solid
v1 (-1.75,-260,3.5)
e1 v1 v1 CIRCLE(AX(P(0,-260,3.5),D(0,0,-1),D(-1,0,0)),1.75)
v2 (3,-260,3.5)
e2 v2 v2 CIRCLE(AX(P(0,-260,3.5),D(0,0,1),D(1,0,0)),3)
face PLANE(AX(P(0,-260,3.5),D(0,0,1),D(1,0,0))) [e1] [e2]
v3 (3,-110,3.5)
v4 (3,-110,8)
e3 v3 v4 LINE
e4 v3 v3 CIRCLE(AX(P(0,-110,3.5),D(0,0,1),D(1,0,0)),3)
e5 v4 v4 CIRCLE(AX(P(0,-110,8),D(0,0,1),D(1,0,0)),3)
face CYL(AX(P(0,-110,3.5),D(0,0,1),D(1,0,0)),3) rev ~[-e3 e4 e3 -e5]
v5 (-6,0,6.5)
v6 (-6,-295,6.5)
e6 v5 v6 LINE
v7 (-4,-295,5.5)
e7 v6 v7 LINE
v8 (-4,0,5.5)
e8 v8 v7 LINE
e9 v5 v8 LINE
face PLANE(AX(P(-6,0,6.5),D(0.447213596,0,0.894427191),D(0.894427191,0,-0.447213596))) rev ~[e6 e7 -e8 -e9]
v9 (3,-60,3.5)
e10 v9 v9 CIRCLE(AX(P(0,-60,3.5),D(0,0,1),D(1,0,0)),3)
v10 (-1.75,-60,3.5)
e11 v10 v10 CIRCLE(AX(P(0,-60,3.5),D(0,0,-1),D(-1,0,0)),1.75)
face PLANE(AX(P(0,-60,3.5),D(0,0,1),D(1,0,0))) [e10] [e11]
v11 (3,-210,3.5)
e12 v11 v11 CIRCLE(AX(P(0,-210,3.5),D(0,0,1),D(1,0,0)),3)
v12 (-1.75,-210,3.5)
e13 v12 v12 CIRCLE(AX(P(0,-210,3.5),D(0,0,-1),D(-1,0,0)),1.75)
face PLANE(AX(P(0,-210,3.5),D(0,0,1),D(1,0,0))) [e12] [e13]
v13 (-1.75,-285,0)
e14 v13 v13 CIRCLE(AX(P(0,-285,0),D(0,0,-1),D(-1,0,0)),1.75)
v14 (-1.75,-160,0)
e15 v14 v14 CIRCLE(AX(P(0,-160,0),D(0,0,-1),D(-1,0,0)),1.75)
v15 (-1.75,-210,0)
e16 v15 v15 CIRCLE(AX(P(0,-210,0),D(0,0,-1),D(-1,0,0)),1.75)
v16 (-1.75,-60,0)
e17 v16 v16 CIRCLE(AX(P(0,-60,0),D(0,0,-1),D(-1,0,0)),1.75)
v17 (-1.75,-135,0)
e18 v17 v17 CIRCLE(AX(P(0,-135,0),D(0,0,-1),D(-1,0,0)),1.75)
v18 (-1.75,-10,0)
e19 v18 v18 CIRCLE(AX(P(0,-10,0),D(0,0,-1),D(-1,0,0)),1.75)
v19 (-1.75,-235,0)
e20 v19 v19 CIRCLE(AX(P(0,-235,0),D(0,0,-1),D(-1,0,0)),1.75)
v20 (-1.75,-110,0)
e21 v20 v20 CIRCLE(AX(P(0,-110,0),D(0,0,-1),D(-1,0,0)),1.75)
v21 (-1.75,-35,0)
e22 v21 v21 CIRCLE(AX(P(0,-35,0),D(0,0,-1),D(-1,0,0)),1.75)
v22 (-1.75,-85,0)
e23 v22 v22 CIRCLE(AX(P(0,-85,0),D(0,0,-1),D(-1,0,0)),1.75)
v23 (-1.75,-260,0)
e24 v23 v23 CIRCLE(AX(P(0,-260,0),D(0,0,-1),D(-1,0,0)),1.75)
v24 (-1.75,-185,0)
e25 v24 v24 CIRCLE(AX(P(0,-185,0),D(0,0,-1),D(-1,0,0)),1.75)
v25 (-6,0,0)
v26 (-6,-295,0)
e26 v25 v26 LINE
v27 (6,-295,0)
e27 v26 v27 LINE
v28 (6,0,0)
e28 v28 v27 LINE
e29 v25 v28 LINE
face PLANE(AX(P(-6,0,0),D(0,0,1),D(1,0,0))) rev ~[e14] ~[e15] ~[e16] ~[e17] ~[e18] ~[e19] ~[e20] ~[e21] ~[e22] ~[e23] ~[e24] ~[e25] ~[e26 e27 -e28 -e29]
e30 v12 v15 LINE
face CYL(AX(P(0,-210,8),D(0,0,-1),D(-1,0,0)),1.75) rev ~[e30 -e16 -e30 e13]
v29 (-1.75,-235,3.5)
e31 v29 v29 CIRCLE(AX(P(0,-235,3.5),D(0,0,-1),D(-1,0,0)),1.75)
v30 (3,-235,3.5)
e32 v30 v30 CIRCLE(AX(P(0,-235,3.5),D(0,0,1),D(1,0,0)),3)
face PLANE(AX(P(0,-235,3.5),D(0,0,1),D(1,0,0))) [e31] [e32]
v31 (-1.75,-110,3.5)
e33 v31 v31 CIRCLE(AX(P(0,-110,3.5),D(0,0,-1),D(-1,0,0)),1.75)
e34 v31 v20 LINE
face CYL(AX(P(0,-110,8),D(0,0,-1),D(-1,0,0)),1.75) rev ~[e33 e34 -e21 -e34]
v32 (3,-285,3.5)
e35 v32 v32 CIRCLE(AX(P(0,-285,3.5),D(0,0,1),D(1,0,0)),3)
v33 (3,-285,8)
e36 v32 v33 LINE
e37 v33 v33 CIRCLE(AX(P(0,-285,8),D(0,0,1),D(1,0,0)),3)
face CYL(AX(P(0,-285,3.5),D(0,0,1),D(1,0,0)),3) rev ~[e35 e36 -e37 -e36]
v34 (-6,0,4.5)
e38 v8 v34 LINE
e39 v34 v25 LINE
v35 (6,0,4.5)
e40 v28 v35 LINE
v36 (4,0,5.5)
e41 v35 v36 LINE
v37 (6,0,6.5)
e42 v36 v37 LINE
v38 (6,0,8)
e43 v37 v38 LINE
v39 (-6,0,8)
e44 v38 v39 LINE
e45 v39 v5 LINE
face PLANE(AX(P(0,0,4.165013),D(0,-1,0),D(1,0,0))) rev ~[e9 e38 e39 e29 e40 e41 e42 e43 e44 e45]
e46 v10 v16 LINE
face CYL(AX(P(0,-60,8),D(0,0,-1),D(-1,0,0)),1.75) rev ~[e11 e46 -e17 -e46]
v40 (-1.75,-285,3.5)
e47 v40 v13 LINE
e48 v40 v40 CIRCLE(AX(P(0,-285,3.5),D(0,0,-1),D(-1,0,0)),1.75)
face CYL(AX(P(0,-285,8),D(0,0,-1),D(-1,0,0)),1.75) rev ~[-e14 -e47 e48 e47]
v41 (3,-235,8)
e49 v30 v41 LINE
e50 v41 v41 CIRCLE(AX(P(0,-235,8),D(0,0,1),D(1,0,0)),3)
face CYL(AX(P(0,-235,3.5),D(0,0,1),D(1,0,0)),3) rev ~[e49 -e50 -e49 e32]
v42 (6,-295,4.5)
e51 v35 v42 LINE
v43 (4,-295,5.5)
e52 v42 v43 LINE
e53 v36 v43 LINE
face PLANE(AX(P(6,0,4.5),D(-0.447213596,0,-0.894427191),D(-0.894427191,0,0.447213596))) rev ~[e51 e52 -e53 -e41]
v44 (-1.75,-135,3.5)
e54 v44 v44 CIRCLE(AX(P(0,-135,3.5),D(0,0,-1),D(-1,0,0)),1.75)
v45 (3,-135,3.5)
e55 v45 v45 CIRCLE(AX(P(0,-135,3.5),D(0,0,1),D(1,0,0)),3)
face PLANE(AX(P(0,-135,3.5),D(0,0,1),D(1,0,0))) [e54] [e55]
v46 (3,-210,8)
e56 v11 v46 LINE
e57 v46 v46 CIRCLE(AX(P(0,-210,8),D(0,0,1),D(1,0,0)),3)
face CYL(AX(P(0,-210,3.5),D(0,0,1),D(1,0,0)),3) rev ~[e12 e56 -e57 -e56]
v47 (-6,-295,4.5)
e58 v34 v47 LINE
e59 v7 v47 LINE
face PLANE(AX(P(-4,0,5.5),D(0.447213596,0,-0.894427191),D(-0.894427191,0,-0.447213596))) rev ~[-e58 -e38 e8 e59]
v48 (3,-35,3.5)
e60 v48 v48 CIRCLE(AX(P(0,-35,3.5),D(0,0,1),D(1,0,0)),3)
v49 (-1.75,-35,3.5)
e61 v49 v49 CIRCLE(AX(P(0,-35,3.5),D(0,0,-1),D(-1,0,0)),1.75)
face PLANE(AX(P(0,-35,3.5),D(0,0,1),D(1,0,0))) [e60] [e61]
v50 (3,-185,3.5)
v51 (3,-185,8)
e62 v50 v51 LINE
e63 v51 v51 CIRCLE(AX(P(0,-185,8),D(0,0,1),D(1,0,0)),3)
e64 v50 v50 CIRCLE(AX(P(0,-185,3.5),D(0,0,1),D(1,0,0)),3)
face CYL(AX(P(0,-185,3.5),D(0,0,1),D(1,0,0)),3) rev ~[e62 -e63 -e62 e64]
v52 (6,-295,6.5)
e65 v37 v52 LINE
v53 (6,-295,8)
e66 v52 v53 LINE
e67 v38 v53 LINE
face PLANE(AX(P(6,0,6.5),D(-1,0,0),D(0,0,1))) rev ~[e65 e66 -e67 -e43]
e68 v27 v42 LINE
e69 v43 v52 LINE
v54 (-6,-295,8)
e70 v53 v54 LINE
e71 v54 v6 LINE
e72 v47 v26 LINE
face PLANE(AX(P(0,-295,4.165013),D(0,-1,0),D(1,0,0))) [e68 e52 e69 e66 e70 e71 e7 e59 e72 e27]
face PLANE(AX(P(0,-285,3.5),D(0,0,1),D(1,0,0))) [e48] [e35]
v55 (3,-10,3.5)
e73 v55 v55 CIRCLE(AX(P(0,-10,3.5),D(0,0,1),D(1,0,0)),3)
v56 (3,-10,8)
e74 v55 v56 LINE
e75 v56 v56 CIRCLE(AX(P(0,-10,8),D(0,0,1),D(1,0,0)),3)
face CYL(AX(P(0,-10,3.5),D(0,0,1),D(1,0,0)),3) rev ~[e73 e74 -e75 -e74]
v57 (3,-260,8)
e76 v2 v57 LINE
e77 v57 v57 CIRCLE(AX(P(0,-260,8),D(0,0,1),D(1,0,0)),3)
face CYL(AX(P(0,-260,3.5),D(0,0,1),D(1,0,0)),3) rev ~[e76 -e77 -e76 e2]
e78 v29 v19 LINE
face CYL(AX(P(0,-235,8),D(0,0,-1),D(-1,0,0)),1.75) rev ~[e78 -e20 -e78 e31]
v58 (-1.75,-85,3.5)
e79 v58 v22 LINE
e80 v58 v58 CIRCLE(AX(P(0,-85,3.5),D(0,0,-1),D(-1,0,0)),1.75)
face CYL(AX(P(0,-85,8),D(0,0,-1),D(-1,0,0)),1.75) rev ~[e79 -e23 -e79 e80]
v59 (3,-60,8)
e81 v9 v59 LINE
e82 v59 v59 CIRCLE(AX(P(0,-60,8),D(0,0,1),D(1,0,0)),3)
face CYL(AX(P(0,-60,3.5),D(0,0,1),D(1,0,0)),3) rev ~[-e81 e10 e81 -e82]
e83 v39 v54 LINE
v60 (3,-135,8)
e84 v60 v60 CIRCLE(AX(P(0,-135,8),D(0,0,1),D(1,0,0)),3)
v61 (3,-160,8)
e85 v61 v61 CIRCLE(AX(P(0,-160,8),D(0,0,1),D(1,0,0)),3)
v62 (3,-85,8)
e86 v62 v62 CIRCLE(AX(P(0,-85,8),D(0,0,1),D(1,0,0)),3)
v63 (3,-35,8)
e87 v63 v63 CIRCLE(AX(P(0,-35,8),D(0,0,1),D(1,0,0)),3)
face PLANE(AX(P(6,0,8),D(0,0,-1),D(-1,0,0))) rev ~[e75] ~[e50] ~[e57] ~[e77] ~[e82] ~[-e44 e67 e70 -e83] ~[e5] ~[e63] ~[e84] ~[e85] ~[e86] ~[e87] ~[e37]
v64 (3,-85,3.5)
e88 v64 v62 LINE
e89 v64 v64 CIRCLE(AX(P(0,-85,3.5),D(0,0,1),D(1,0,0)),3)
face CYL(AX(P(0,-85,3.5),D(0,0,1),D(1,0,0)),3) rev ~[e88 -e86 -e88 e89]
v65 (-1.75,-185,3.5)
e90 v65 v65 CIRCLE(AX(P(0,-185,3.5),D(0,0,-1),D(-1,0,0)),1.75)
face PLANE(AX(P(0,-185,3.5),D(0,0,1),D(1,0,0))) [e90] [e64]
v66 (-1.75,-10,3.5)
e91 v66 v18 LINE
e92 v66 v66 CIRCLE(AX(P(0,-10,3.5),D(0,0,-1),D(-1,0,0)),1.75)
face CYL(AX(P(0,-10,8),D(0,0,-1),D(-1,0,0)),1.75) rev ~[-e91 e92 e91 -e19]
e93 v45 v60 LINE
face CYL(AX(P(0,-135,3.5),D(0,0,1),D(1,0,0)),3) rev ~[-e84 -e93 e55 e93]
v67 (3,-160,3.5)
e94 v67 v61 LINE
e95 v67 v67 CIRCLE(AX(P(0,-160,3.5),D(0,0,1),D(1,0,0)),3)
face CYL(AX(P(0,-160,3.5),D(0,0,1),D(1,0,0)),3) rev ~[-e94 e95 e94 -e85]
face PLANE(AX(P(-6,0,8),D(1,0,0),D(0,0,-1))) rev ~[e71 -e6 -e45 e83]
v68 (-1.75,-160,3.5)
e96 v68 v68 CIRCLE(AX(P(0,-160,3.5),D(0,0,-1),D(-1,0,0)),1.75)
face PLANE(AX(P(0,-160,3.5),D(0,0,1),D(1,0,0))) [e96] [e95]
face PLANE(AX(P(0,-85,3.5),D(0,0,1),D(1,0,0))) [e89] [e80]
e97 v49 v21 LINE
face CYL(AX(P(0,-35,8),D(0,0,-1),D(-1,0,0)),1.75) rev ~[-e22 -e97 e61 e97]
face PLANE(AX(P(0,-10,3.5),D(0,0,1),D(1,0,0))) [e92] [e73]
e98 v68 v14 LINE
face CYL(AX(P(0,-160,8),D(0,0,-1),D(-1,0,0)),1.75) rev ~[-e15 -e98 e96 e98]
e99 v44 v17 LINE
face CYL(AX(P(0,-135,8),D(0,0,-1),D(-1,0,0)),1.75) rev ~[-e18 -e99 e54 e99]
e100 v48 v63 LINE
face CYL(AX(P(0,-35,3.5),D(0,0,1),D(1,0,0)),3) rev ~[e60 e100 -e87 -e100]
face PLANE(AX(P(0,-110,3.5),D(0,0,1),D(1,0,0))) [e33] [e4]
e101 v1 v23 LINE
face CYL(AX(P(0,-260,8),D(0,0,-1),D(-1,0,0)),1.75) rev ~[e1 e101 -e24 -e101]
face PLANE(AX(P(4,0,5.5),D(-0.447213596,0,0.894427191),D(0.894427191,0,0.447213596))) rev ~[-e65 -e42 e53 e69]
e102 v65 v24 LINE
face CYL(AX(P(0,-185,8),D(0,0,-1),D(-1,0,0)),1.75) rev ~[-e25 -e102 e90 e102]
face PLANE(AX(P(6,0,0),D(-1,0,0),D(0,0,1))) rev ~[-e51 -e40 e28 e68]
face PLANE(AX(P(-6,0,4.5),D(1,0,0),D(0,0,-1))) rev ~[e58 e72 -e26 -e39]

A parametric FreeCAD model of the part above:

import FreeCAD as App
import Part
import Sketcher
from FreeCAD import Vector
Q = App.Units.Quantity


def add_polygon(sketch, points):
    """Adds a closed chain of lines whose ends are joined by coincident constraints."""
    first, n = sketch.GeometryCount, len(points)
    for a, b in zip(points, points[1:] + points[:1]):
        sketch.addGeometry(Part.LineSegment(App.Vector(*a, 0), App.Vector(*b, 0)), False)
    for i in range(n):
        sketch.addConstraint(Sketcher.Constraint("Coincident", first + i, 2, first + (i + 1) % n, 1))

doc = App.newDocument("Part")
body = doc.addObject("PartDesign::Body", "Body")

sketch1 = body.newObject("Sketcher::SketchObject", "Sketch")
sketch1.AttachmentSupport = (doc.getObject("XZ_Plane"), [""])
sketch1.MapMode = "FlatFace"
add_polygon(sketch1, [(-6, 4.5), (-6, 0), (6, 0), (6, 4.5), (4, 5.5), (6, 6.5), (6, 8), (-6, 8), (-6, 6.5), (-4, 5.5)])
sketch1.addConstraint(Sketcher.Constraint("Vertical", 0))
sketch1.addConstraint(Sketcher.Constraint("Horizontal", 1))
sketch1.addConstraint(Sketcher.Constraint("Vertical", 2))
sketch1.addConstraint(Sketcher.Constraint("Vertical", 5))
sketch1.addConstraint(Sketcher.Constraint("Horizontal", 6))
sketch1.addConstraint(Sketcher.Constraint("Vertical", 7))
sketch1.addConstraint(Sketcher.Constraint("Symmetric", 0, 2, 1, 2, -1, 1))
sketch1.addConstraint(Sketcher.Constraint("Symmetric", 4, 2, 7, 2, -2))
sketch1.addConstraint(Sketcher.Constraint("Symmetric", 3, 2, 8, 2, -2))
sketch1.addConstraint(Sketcher.Constraint("Parallel", 3, 8))
sketch1.addConstraint(Sketcher.Constraint("Parallel", 4, 9))
sketch1.addConstraint(Sketcher.Constraint("Vertical", 2, 2, 4, 2))
sketch1.addConstraint(Sketcher.Constraint("DistanceX", 1, 1, 1, 2, Q("12 mm")))
sketch1.addConstraint(Sketcher.Constraint("DistanceY", 0, 2, 0, 1, Q("4.5 mm")))
sketch1.addConstraint(Sketcher.Constraint("DistanceY", 5, 1, 5, 2, Q("1.5 mm")))
sketch1.addConstraint(Sketcher.Constraint("DistanceX", -1, 1, 3, 2, Q("4 mm")))
sketch1.addConstraint(Sketcher.Constraint("DistanceY", -1, 1, 5, 2, Q("8 mm")))
pad1 = body.newObject("PartDesign::Pad", "Pad")
pad1.Profile = sketch1
pad1.Length = 295

sketch2 = body.newObject("Sketcher::SketchObject", "Sketch001")
sketch2.AttachmentSupport = (doc.getObject("XY_Plane"), [""])
sketch2.MapMode = "FlatFace"
sketch2.AttachmentOffset = App.Placement(Vector(0, 0, 8), App.Rotation())
sketch2.addGeometry(Part.Circle(Vector(0, -285, 0), Vector(0, 0, 1), 1.8), False)
sketch2.addGeometry(Part.Circle(Vector(0, -260, 0), Vector(0, 0, 1), 1.8), False)
sketch2.addGeometry(Part.Circle(Vector(0, -235, 0), Vector(0, 0, 1), 1.8), False)
sketch2.addGeometry(Part.Circle(Vector(0, -210, 0), Vector(0, 0, 1), 1.8), False)
sketch2.addGeometry(Part.Circle(Vector(0, -185, 0), Vector(0, 0, 1), 1.8), False)
sketch2.addGeometry(Part.Circle(Vector(0, -160, 0), Vector(0, 0, 1), 1.8), False)
sketch2.addGeometry(Part.Circle(Vector(0, -135, 0), Vector(0, 0, 1), 1.8), False)
sketch2.addGeometry(Part.Circle(Vector(0, -110, 0), Vector(0, 0, 1), 1.8), False)
sketch2.addGeometry(Part.Circle(Vector(0, -85, 0), Vector(0, 0, 1), 1.8), False)
sketch2.addGeometry(Part.Circle(Vector(0, -10, 0), Vector(0, 0, 1), 1.8), False)
sketch2.addGeometry(Part.Circle(Vector(0, -35, 0), Vector(0, 0, 1), 1.8), False)
sketch2.addGeometry(Part.Circle(Vector(0, -60, 0), Vector(0, 0, 1), 1.8), False)
sketch2.addConstraint(Sketcher.Constraint("Equal", 0, 1))
sketch2.addConstraint(Sketcher.Constraint("Equal", 1, 2))
sketch2.addConstraint(Sketcher.Constraint("Equal", 2, 3))
sketch2.addConstraint(Sketcher.Constraint("Equal", 3, 4))
sketch2.addConstraint(Sketcher.Constraint("Equal", 4, 5))
sketch2.addConstraint(Sketcher.Constraint("Equal", 5, 6))
sketch2.addConstraint(Sketcher.Constraint("Equal", 6, 7))
sketch2.addConstraint(Sketcher.Constraint("Equal", 7, 8))
sketch2.addConstraint(Sketcher.Constraint("Equal", 8, 9))
sketch2.addConstraint(Sketcher.Constraint("Equal", 9, 10))
sketch2.addConstraint(Sketcher.Constraint("Equal", 10, 11))
sketch2.addConstraint(Sketcher.Constraint("PointOnObject", 0, 3, -2))
sketch2.addConstraint(Sketcher.Constraint("PointOnObject", 1, 3, -2))
sketch2.addConstraint(Sketcher.Constraint("PointOnObject", 2, 3, -2))
sketch2.addConstraint(Sketcher.Constraint("PointOnObject", 3, 3, -2))
sketch2.addConstraint(Sketcher.Constraint("PointOnObject", 4, 3, -2))
sketch2.addConstraint(Sketcher.Constraint("PointOnObject", 5, 3, -2))
sketch2.addConstraint(Sketcher.Constraint("PointOnObject", 6, 3, -2))
sketch2.addConstraint(Sketcher.Constraint("PointOnObject", 7, 3, -2))
sketch2.addConstraint(Sketcher.Constraint("PointOnObject", 8, 3, -2))
sketch2.addConstraint(Sketcher.Constraint("PointOnObject", 9, 3, -2))
sketch2.addConstraint(Sketcher.Constraint("PointOnObject", 10, 3, -2))
sketch2.addConstraint(Sketcher.Constraint("PointOnObject", 11, 3, -2))
sketch2.addConstraint(Sketcher.Constraint("Diameter", 0, Q("3.5 mm")))
sketch2.addConstraint(Sketcher.Constraint("DistanceY", 0, 3, -1, 1, Q("285 mm")))
sketch2.addConstraint(Sketcher.Constraint("DistanceY", 1, 3, -1, 1, Q("260 mm")))
sketch2.addConstraint(Sketcher.Constraint("DistanceY", 2, 3, -1, 1, Q("235 mm")))
sketch2.addConstraint(Sketcher.Constraint("DistanceY", 3, 3, -1, 1, Q("210 mm")))
sketch2.addConstraint(Sketcher.Constraint("DistanceY", 4, 3, -1, 1, Q("185 mm")))
sketch2.addConstraint(Sketcher.Constraint("DistanceY", 5, 3, -1, 1, Q("160 mm")))
sketch2.addConstraint(Sketcher.Constraint("DistanceY", 6, 3, -1, 1, Q("135 mm")))
sketch2.addConstraint(Sketcher.Constraint("DistanceY", 7, 3, -1, 1, Q("110 mm")))
sketch2.addConstraint(Sketcher.Constraint("DistanceY", 8, 3, -1, 1, Q("85 mm")))
sketch2.addConstraint(Sketcher.Constraint("DistanceY", 9, 3, -1, 1, Q("10 mm")))
sketch2.addConstraint(Sketcher.Constraint("DistanceY", 10, 3, -1, 1, Q("35 mm")))
sketch2.addConstraint(Sketcher.Constraint("DistanceY", 11, 3, -1, 1, Q("60 mm")))
doc.recompute()
hole = body.newObject("PartDesign::Hole", "Hole")
hole.Profile = sketch2
hole.ThreadType = "None"
hole.Diameter = 3.5
hole.DepthType = "Dimension"
hole.Depth = 20
hole.DrillPoint = "Flat"
hole.HoleCutType = "Counterbore"
hole.HoleCutDiameter = 6
hole.HoleCutDepth = 4.5

doc.recompute()
